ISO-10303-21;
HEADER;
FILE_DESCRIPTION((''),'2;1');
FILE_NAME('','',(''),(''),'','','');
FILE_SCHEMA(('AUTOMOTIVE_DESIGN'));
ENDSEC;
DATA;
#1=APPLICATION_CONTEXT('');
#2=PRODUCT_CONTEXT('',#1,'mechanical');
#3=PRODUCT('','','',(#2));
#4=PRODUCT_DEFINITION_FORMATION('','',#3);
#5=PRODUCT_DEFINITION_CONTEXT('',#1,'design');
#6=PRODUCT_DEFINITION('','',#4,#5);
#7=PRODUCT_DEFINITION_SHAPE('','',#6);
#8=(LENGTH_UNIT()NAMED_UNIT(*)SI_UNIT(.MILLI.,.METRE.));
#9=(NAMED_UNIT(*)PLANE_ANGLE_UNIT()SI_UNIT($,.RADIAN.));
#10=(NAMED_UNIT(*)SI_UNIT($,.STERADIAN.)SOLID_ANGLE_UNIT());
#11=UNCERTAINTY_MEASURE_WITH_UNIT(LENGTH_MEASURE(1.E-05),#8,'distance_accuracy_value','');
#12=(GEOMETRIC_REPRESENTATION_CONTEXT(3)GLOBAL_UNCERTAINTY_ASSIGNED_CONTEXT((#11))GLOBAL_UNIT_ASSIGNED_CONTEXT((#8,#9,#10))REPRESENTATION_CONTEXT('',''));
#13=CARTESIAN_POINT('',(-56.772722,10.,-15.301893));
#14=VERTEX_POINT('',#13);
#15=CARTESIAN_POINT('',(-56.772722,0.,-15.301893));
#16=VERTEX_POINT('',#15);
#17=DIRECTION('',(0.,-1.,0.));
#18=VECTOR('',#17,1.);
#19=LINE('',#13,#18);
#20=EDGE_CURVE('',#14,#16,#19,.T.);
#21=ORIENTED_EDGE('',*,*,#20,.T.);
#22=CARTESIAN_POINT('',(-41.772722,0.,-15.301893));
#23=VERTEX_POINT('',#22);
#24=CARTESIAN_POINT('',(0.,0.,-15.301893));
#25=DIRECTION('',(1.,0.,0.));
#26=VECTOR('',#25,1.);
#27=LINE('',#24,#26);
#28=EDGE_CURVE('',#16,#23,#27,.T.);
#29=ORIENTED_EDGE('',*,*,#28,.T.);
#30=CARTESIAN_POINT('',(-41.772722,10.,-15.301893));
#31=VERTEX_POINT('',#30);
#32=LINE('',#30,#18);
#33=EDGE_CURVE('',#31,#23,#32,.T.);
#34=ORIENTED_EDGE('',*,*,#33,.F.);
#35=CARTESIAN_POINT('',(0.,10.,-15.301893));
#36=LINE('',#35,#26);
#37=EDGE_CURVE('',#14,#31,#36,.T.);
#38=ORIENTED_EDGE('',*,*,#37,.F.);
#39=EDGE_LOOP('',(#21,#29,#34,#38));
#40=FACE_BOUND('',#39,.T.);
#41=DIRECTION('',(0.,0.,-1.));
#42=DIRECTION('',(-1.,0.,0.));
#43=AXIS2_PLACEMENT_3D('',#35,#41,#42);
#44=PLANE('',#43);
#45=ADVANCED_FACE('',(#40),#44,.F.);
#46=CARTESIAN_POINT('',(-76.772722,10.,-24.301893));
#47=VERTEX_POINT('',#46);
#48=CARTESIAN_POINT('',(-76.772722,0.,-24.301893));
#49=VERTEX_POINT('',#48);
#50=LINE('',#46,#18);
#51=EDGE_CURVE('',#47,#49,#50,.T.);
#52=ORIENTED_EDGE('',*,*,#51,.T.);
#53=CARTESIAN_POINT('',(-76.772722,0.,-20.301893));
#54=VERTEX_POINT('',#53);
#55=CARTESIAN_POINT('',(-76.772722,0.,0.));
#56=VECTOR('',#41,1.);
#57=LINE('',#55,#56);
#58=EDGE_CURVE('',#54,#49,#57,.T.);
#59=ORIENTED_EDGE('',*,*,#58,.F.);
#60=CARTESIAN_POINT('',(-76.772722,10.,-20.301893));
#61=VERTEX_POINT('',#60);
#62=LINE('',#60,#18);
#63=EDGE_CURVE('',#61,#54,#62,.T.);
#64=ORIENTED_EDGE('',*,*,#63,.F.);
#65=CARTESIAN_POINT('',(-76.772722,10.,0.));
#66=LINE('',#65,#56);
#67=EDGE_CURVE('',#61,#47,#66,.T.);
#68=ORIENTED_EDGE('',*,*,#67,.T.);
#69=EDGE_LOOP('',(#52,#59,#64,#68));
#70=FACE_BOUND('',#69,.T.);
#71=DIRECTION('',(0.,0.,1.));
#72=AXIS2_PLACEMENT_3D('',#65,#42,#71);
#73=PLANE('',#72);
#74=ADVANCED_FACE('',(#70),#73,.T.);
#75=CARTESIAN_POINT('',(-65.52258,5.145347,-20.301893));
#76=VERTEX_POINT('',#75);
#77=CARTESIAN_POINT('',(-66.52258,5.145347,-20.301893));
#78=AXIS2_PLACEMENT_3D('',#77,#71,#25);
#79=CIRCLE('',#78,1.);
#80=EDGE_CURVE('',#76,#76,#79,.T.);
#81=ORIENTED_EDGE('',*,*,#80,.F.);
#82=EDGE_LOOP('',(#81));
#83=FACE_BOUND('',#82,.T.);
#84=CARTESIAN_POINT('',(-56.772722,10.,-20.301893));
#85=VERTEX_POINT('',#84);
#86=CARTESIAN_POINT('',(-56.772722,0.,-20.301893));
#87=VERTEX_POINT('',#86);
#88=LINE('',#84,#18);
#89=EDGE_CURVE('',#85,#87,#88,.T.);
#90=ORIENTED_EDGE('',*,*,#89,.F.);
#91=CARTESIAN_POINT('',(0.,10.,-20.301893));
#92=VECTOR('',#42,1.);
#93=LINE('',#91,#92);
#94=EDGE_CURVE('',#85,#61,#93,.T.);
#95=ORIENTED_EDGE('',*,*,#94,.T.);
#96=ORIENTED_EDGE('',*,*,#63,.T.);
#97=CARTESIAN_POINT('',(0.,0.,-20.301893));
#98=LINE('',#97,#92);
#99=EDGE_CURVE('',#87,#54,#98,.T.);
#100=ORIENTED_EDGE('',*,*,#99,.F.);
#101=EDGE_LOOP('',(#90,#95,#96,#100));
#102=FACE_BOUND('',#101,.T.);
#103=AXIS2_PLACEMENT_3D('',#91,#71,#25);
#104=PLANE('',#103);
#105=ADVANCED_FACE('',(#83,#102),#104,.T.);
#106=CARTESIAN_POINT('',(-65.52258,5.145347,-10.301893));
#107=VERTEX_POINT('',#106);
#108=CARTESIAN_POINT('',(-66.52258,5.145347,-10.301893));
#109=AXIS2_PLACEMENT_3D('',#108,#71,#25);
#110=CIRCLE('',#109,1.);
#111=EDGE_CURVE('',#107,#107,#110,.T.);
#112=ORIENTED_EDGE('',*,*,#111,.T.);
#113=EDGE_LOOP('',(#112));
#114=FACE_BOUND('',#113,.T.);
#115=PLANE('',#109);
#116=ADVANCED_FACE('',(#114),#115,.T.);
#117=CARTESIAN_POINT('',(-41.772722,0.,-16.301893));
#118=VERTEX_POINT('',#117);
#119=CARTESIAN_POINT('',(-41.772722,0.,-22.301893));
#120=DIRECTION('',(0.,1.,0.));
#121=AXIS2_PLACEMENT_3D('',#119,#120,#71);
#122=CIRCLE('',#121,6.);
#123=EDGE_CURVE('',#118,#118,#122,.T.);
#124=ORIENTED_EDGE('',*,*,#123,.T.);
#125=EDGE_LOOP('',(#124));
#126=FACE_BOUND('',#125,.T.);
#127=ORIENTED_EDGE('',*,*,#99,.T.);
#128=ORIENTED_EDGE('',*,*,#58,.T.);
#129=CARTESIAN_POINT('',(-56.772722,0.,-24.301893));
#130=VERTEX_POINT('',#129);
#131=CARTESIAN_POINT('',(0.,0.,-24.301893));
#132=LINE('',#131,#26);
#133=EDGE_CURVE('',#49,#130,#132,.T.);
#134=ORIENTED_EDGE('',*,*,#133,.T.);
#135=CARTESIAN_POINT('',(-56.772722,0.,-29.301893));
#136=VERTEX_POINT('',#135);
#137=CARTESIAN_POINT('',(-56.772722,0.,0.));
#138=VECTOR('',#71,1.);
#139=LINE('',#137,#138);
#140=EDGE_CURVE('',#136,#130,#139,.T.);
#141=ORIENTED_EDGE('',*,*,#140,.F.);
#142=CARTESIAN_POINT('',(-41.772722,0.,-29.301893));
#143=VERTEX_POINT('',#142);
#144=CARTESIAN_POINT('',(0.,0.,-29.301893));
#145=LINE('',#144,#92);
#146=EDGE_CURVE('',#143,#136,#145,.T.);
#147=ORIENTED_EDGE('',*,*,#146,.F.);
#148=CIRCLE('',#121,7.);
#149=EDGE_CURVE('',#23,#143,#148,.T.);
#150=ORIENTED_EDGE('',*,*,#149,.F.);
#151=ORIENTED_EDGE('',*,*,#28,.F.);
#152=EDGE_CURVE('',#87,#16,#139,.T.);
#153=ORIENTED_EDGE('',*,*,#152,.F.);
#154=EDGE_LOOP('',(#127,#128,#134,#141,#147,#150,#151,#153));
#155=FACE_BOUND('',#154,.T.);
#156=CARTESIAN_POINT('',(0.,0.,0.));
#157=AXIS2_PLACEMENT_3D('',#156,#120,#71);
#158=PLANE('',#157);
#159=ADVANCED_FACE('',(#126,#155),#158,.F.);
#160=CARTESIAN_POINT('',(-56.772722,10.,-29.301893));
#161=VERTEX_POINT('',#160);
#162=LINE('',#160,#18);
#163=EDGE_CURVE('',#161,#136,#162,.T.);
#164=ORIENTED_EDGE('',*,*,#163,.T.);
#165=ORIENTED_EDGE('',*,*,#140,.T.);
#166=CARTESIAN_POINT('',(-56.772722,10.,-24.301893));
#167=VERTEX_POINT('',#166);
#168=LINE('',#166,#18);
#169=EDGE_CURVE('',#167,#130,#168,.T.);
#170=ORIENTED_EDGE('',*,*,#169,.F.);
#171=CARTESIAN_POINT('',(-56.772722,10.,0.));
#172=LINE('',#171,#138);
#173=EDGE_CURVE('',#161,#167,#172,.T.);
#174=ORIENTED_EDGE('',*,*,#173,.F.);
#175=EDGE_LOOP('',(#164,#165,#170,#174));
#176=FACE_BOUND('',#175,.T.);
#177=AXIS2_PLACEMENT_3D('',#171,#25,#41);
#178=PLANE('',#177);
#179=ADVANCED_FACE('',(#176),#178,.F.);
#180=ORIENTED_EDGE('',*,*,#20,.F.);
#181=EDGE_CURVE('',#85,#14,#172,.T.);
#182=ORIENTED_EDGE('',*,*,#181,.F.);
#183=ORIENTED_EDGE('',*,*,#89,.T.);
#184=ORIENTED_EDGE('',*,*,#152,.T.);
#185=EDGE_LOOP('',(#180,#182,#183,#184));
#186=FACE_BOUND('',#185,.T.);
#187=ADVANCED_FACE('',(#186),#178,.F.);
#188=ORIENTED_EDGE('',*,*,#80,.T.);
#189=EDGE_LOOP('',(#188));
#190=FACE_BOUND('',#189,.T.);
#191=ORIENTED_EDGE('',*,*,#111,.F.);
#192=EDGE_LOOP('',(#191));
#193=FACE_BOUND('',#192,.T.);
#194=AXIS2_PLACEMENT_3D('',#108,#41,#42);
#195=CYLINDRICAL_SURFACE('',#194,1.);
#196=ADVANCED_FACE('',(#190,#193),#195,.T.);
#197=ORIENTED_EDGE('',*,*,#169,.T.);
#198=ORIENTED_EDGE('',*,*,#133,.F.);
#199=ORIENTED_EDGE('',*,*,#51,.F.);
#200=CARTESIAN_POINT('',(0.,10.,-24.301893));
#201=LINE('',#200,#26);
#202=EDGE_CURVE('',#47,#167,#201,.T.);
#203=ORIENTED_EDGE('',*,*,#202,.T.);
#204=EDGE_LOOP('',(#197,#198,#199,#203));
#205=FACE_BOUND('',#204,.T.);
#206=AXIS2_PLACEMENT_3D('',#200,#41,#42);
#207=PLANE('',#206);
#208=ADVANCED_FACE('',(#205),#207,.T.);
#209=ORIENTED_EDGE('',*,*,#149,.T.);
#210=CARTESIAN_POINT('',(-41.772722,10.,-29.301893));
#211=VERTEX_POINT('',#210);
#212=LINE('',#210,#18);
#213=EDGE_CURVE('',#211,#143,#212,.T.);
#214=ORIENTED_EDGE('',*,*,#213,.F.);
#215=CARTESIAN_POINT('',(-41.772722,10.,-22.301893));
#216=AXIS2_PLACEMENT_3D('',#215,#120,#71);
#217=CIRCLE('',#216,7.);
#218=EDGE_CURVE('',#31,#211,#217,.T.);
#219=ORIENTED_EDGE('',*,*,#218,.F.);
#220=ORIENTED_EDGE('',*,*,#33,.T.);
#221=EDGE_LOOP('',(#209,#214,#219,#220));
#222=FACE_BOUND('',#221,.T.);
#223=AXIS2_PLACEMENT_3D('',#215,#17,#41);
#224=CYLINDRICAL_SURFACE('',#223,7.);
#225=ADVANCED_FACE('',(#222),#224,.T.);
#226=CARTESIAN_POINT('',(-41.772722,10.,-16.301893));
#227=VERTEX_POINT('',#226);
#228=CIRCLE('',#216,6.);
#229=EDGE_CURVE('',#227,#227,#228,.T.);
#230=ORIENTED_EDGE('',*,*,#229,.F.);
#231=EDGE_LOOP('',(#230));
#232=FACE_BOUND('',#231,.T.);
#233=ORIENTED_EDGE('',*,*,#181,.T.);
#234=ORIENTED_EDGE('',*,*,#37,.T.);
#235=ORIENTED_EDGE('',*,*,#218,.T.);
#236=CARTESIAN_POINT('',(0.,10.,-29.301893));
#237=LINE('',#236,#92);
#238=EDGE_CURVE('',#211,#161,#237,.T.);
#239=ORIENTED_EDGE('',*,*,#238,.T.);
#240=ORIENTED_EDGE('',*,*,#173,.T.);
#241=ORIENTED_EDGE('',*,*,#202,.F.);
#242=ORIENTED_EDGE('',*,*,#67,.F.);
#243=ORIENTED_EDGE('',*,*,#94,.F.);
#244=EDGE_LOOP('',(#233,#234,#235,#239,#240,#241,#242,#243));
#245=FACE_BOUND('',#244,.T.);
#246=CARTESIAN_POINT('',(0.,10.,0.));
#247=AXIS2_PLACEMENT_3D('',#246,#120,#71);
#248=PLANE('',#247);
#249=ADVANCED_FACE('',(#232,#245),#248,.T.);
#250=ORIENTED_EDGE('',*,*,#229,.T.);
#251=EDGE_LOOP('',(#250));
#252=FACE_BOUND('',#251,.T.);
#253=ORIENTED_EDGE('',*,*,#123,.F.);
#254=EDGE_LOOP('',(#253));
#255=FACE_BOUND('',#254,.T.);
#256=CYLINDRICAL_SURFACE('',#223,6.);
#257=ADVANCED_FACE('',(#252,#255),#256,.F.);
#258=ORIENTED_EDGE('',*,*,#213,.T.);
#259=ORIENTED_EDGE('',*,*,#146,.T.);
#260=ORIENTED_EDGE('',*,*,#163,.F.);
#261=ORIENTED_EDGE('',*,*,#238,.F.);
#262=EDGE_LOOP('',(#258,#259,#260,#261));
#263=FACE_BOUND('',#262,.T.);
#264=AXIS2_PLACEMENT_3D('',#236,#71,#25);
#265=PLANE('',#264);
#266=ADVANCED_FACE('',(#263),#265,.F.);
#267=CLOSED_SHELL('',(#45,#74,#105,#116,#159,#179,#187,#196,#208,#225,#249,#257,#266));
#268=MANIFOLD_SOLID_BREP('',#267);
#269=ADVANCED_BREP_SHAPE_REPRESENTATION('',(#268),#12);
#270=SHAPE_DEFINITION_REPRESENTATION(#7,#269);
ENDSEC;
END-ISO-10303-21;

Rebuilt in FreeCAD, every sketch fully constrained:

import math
import FreeCAD as App
import Part
import Sketcher
Q = App.Units.Quantity

doc = App.newDocument("Part")
body = doc.addObject("PartDesign::Body", "Body")

# Sketch on XZ plane
sketch1 = body.newObject("Sketcher::SketchObject", "Sketch")
sketch1.AttachmentSupport = (doc.getObject("XZ_Plane"), [""])
sketch1.MapMode = "FlatFace"
sketch1.addGeometry(Part.LineSegment(App.Vector(-56.8, -15.3, 0), App.Vector(-41.8, -15.3, 0)), False)
sketch1.addGeometry(Part.ArcOfCircle(Part.Circle(App.Vector(-41.8, -22.3, 0), App.Vector(0, 0, 1), 7), math.radians(-90), math.radians(90)), False)
sketch1.addGeometry(Part.LineSegment(App.Vector(-41.8, -29.3, 0), App.Vector(-56.8, -29.3, 0)), False)
sketch1.addGeometry(Part.LineSegment(App.Vector(-56.8, -29.3, 0), App.Vector(-56.8, -24.3, 0)), False)
sketch1.addGeometry(Part.LineSegment(App.Vector(-56.8, -24.3, 0), App.Vector(-76.8, -24.3, 0)), False)
sketch1.addGeometry(Part.LineSegment(App.Vector(-76.8, -24.3, 0), App.Vector(-76.8, -20.3, 0)), False)
sketch1.addGeometry(Part.LineSegment(App.Vector(-76.8, -20.3, 0), App.Vector(-56.8, -20.3, 0)), False)
sketch1.addGeometry(Part.LineSegment(App.Vector(-56.8, -20.3, 0), App.Vector(-56.8, -15.3, 0)), False)
sketch1.addGeometry(Part.Circle(App.Vector(-41.8, -22.3, 0), App.Vector(0, 0, 1), 6), False)
sketch1.addConstraint(Sketcher.Constraint("Tangent", 0, 2, 1, 2))
sketch1.addConstraint(Sketcher.Constraint("Tangent", 1, 1, 2, 1))
sketch1.addConstraint(Sketcher.Constraint("Coincident", 2, 2, 3, 1))
sketch1.addConstraint(Sketcher.Constraint("Coincident", 3, 2, 4, 1))
sketch1.addConstraint(Sketcher.Constraint("Coincident", 4, 2, 5, 1))
sketch1.addConstraint(Sketcher.Constraint("Coincident", 5, 2, 6, 1))
sketch1.addConstraint(Sketcher.Constraint("Coincident", 6, 2, 7, 1))
sketch1.addConstraint(Sketcher.Constraint("Coincident", 7, 2, 0, 1))
sketch1.addConstraint(Sketcher.Constraint("Horizontal", 0))
sketch1.addConstraint(Sketcher.Constraint("Horizontal", 2))
sketch1.addConstraint(Sketcher.Constraint("Vertical", 3))
sketch1.addConstraint(Sketcher.Constraint("Horizontal", 4))
sketch1.addConstraint(Sketcher.Constraint("Vertical", 5))
sketch1.addConstraint(Sketcher.Constraint("Horizontal", 6))
sketch1.addConstraint(Sketcher.Constraint("Vertical", 7))
sketch1.addConstraint(Sketcher.Constraint("Coincident", 8, 3, 1, 3))
sketch1.addConstraint(Sketcher.Constraint("Vertical", 3, 2, 6, 2))
sketch1.addConstraint(Sketcher.Constraint("Equal", 3, 7))
sketch1.addConstraint(Sketcher.Constraint("Diameter", 8, Q("12 mm")))
sketch1.addConstraint(Sketcher.Constraint("Radius", 1, Q("7 mm")))
sketch1.addConstraint(Sketcher.Constraint("DistanceX", 0, 1, 0, 2, Q("15 mm")))
sketch1.addConstraint(Sketcher.Constraint("DistanceX", 4, 2, 4, 1, Q("20 mm")))
sketch1.addConstraint(Sketcher.Constraint("DistanceY", 3, 1, 3, 2, Q("5 mm")))
sketch1.addConstraint(Sketcher.Constraint("DistanceX", 1, 3, -1, 1, Q("41.772722 mm")))
sketch1.addConstraint(Sketcher.Constraint("DistanceY", 1, 3, -1, 1, Q("22.301893 mm")))
pad1 = body.newObject("PartDesign::Pad", "Pad")
pad1.Profile = sketch1
pad1.Length = 10
pad1.Reversed = True

# Sketch on XY plane
sketch2 = body.newObject("Sketcher::SketchObject", "Sketch001")
sketch2.AttachmentSupport = (doc.getObject("XY_Plane"), [""])
sketch2.MapMode = "FlatFace"
sketch2.AttachmentOffset = App.Placement(App.Vector(0, 0, -20.301893), App.Rotation())
sketch2.addGeometry(Part.Circle(App.Vector(-66.5, 5.1, 0), App.Vector(0, 0, 1), 1), False)
sketch2.addConstraint(Sketcher.Constraint("Diameter", 0, Q("2 mm")))
sketch2.addConstraint(Sketcher.Constraint("DistanceX", 0, 3, -1, 1, Q("66.52258 mm")))
sketch2.addConstraint(Sketcher.Constraint("DistanceY", -1, 1, 0, 3, Q("5.145347 mm")))
pad2 = body.newObject("PartDesign::Pad", "Pad001")
pad2.Profile = sketch2
pad2.Length = 10

doc.recompute()
